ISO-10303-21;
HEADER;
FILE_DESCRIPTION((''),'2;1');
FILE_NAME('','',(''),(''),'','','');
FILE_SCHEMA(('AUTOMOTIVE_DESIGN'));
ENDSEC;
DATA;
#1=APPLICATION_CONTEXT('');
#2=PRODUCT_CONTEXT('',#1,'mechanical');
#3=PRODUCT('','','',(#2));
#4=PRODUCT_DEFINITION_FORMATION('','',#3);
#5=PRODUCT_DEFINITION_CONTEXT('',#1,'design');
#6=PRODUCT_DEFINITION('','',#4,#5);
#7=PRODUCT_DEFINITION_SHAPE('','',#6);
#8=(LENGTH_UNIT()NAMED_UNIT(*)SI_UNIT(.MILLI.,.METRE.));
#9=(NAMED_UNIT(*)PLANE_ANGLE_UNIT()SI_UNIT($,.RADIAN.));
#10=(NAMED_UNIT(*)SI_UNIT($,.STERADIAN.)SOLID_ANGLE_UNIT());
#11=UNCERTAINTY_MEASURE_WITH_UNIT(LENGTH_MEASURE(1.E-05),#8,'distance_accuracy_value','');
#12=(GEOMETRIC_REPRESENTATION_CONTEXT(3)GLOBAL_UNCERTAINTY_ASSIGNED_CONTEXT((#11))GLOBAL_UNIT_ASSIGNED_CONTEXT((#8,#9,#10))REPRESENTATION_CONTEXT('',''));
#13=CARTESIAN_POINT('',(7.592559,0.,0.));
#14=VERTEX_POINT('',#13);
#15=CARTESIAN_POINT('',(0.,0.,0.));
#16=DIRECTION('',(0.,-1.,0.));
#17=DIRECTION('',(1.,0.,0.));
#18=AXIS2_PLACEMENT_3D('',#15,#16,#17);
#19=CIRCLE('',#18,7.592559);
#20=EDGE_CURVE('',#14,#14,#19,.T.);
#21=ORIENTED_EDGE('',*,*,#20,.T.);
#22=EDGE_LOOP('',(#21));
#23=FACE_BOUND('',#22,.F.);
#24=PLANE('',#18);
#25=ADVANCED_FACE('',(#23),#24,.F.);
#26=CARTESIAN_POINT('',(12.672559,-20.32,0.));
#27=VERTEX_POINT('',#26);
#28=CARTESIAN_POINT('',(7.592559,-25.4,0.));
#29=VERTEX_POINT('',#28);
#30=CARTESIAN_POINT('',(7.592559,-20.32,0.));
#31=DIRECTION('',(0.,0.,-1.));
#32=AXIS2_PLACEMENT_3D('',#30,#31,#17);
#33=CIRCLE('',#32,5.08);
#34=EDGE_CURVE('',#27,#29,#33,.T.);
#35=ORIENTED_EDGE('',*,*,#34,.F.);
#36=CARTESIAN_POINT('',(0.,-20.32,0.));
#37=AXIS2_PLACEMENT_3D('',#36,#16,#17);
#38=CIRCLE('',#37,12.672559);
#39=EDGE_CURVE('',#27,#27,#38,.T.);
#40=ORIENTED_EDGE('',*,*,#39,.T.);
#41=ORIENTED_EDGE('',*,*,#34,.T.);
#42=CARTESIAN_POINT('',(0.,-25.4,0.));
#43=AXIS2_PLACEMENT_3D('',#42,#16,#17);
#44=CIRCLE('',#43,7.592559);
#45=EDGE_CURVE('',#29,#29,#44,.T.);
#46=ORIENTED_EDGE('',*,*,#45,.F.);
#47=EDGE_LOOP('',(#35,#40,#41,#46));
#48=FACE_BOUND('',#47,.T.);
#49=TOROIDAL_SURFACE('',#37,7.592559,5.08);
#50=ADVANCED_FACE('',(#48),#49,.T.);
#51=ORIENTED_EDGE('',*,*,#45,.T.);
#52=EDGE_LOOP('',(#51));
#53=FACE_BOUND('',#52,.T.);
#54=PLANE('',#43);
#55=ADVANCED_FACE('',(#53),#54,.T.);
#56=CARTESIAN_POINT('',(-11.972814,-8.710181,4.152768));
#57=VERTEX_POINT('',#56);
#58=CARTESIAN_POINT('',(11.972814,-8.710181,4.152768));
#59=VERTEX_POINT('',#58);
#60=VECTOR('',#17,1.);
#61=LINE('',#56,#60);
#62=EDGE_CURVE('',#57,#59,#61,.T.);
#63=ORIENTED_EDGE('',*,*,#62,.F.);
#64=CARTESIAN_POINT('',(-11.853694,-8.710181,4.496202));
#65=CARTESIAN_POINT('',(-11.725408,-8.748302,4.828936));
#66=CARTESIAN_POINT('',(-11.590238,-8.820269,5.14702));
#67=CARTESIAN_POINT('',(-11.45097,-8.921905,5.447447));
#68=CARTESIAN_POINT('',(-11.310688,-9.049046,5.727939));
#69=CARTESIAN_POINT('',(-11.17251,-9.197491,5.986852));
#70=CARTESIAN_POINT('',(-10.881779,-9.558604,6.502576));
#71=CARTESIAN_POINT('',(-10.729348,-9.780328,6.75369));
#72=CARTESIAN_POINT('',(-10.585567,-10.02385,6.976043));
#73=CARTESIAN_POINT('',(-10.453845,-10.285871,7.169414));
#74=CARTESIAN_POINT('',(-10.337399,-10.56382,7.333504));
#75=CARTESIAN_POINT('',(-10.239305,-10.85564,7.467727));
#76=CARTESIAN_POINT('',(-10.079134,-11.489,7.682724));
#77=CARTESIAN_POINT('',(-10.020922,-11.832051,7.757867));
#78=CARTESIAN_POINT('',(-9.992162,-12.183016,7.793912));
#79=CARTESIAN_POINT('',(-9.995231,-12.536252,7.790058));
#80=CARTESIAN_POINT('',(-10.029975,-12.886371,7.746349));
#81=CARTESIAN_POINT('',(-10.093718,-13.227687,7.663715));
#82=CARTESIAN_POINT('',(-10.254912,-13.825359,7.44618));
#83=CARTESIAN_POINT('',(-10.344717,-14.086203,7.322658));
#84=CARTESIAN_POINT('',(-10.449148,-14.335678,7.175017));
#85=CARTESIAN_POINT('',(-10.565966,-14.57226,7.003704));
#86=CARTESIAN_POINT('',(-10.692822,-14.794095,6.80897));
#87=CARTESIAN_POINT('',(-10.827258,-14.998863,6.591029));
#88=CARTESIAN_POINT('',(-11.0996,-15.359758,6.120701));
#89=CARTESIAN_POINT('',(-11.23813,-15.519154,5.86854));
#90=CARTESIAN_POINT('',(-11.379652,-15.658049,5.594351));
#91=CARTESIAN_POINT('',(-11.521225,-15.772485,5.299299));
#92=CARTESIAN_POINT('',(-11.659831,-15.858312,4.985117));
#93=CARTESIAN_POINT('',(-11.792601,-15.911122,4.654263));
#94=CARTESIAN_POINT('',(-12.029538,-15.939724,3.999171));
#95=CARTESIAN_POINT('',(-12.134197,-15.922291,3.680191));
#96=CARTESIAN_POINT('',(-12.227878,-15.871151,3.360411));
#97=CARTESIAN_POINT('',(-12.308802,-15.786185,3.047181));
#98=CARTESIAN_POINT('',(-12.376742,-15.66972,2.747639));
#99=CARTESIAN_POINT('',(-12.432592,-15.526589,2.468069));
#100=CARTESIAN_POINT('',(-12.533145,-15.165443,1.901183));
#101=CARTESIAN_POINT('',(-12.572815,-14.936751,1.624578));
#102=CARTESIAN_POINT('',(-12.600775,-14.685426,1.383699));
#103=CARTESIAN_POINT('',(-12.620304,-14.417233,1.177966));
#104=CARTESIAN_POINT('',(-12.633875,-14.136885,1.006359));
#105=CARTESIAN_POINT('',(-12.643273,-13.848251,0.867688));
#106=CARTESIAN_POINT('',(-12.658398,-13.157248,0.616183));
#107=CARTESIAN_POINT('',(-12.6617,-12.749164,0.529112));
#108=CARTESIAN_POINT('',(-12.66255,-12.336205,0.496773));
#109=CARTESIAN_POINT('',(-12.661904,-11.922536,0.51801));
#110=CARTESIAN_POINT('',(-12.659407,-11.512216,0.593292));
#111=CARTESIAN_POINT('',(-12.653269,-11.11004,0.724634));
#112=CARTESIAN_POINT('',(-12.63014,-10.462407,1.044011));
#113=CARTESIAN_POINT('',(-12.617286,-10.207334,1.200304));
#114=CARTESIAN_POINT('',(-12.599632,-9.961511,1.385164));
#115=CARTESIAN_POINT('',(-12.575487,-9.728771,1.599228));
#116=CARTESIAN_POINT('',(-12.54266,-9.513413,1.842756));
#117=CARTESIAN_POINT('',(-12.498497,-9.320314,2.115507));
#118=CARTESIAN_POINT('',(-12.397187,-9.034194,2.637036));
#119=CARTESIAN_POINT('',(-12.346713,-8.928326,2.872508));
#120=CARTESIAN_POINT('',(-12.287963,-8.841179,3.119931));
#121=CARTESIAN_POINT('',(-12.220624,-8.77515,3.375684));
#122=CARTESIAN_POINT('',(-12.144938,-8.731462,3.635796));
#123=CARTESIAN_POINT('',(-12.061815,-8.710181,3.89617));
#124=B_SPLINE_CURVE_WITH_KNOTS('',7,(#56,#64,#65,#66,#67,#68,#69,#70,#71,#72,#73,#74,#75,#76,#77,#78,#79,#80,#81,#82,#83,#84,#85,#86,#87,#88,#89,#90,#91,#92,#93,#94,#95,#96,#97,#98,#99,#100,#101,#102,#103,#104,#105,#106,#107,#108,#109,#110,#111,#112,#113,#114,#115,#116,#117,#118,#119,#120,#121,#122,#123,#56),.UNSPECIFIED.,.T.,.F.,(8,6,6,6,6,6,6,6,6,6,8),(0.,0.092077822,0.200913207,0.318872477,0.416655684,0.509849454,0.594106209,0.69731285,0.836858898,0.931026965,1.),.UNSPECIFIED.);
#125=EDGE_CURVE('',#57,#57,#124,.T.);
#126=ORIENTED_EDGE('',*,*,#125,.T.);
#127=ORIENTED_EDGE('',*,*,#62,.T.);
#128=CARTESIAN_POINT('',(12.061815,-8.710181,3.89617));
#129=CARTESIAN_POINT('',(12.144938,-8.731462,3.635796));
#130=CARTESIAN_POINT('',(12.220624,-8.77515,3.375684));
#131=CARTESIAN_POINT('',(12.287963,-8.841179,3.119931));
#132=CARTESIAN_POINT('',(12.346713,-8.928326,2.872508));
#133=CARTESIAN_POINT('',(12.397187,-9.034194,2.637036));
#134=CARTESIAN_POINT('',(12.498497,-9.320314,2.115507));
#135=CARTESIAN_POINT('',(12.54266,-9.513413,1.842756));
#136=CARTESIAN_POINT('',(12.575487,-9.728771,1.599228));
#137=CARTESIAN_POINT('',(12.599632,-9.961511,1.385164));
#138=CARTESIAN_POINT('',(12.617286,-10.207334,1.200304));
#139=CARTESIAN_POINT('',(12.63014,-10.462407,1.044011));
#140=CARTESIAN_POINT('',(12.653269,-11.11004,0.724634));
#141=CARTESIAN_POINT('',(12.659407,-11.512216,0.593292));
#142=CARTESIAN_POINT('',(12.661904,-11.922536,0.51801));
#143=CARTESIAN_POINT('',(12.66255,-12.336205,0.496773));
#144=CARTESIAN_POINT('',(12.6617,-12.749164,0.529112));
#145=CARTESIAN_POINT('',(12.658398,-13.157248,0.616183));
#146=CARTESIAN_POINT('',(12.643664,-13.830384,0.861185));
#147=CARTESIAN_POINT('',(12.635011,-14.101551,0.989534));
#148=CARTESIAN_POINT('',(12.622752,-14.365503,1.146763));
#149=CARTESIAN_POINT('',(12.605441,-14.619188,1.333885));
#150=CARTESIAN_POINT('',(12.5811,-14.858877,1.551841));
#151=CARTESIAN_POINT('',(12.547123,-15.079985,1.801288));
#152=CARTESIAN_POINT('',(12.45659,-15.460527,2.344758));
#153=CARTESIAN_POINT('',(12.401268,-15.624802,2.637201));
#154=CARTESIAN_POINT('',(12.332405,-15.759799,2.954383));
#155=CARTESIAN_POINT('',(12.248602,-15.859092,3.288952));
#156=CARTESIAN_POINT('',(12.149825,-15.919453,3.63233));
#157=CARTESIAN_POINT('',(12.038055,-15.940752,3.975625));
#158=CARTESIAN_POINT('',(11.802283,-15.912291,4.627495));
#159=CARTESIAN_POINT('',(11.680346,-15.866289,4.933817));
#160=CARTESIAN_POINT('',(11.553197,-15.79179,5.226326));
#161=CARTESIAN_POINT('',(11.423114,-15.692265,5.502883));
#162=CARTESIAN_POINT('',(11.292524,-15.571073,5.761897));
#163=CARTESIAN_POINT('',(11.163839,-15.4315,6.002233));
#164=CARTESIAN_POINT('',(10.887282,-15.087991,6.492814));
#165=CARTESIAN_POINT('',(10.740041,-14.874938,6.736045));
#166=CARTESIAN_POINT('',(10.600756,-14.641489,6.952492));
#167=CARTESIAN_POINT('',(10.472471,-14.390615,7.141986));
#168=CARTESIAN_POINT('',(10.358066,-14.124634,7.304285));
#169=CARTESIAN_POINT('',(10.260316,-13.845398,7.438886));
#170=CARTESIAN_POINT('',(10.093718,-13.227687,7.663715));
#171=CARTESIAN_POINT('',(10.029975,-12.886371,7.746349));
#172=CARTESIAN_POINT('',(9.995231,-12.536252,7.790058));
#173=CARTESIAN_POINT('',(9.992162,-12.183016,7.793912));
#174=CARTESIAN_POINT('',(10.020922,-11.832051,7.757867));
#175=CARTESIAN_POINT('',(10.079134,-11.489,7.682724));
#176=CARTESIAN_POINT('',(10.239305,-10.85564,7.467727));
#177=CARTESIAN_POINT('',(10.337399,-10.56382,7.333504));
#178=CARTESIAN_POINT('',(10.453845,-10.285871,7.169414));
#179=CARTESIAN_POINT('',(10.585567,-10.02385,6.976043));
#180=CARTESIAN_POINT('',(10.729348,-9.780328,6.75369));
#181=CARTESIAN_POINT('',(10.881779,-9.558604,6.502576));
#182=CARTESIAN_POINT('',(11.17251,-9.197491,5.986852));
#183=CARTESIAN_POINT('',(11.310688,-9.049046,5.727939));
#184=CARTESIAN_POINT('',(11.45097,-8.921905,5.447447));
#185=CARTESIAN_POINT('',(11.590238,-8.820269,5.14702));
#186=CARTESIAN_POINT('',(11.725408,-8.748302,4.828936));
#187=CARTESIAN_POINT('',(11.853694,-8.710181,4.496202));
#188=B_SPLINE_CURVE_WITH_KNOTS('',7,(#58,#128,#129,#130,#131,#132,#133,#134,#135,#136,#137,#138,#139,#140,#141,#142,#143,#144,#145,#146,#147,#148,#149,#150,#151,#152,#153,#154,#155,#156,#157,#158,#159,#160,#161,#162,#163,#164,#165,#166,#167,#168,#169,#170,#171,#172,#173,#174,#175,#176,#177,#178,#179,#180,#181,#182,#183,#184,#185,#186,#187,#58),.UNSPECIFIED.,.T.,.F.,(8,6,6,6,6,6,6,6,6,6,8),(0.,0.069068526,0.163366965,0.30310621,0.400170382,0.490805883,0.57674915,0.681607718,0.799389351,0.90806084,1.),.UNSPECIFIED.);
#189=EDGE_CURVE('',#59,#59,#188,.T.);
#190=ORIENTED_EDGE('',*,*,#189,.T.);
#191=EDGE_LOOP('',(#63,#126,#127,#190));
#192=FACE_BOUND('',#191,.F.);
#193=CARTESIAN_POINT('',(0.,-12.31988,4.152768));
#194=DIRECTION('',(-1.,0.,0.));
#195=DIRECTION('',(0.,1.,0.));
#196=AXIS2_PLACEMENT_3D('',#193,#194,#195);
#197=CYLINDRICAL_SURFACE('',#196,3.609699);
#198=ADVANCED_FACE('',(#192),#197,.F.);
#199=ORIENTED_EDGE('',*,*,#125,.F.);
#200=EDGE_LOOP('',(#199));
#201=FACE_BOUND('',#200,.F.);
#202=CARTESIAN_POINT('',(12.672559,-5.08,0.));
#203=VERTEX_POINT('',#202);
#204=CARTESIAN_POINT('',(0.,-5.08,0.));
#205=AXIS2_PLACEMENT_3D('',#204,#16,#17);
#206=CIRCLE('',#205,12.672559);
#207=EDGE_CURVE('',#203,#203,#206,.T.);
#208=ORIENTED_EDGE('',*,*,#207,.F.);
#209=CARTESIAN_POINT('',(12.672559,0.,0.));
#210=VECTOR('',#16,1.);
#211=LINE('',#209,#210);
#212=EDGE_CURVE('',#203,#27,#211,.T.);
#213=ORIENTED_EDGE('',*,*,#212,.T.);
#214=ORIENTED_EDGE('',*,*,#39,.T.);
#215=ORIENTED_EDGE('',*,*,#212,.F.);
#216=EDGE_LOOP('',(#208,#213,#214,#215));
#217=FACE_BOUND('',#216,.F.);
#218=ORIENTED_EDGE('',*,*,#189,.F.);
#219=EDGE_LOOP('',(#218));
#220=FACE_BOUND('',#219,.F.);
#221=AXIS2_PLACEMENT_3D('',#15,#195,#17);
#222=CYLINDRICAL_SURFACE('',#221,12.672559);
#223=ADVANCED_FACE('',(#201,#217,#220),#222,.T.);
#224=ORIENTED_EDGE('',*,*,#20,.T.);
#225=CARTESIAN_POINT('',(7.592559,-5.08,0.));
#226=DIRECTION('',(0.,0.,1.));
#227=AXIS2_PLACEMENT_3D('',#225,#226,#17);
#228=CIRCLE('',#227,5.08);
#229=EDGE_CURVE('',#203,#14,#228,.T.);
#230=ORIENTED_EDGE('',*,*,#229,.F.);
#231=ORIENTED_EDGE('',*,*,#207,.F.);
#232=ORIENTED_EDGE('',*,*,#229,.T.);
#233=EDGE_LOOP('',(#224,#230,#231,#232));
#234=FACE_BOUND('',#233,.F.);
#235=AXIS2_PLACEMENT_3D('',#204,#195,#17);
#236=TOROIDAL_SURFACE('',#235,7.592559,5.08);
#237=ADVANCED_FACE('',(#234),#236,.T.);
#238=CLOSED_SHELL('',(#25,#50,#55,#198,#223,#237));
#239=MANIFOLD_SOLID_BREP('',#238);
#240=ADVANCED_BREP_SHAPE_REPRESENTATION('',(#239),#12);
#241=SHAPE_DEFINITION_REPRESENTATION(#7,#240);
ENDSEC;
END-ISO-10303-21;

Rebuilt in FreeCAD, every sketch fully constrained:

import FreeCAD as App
import Part
import Sketcher
from FreeCAD import Vector
Q = App.Units.Quantity


def edges_at(feature, points):
    """Names of the edges that pass closest to the given points."""
    edges = feature.Shape.Edges
    near = lambda p: min(range(len(edges)), key=lambda i: edges[i].distToShape(Part.Vertex(*p))[0])
    return sorted({f"Edge{near(p) + 1}" for p in points})

doc = App.newDocument("Part")
params = doc.addObject("Spreadsheet::Sheet", "Params")
for row, (alias, value) in enumerate([
    ("pad1_length", "1 in"),
    ("fillet_radius", "0.2 in"),
    ("fillet2_radius", "0.2 in"),
    ("pocket1_length", "2 in"),
    ("pocket2_length", "4 in"),
], start=1):
    params.set(f"A{row}", alias)
    params.set(f"B{row}", "=" + value)
    params.setAlias(f"B{row}", alias)

body = doc.addObject("PartDesign::Body", "Body")

# Sketch on XZ plane
sketch1 = body.newObject("Sketcher::SketchObject", "Sketch")
sketch1.AttachmentSupport = (doc.getObject("XZ_Plane"), [""])
sketch1.MapMode = "FlatFace"
sketch1.addGeometry(Part.Circle(Vector(0, 0, 0), Vector(0, 0, 1), 13), False)
sketch1.addConstraint([
    Sketcher.Constraint("Coincident", 0, 3, -1, 1),
    Sketcher.Constraint("Diameter", 0, Q("25.345118 mm")),
])
pad1 = body.newObject("PartDesign::Pad", "Pad")
pad1.Profile = sketch1
pad1.setExpression("Length", "Params.pad1_length")
doc.recompute()

fillet = body.newObject("PartDesign::Fillet", "Fillet")
fillet.Base = (pad1, edges_at(pad1, [(-12.673, -25.4, 0)]))
fillet.setExpression("Radius", "Params.fillet_radius")
doc.recompute()

fillet2 = body.newObject("PartDesign::Fillet", "Fillet001")
fillet2.Base = (fillet, edges_at(fillet, [(-12.673, 0, 0)]))
fillet2.setExpression("Radius", "Params.fillet2_radius")

# Sketch on YZ plane
sketch2 = body.newObject("Sketcher::SketchObject", "Sketch001")
sketch2.AttachmentSupport = (doc.getObject("YZ_Plane"), [""])
sketch2.MapMode = "FlatFace"
sketch2.addGeometry(Part.Circle(Vector(-12.3, 4.2, 0), Vector(0, 0, 1), 3.6), False)
sketch2.addConstraint([
    Sketcher.Constraint("Diameter", 0, Q("7.219398 mm")),
    Sketcher.Constraint("DistanceX", 0, 3, -1, 1, Q("12.31988 mm")),
    Sketcher.Constraint("DistanceY", -1, 1, 0, 3, Q("4.152768 mm")),
])
pocket1 = body.newObject("PartDesign::Pocket", "Pocket")
pocket1.Profile = sketch2
pocket1.setExpression("Length", "Params.pocket1_length")

# Sketch on YZ plane
sketch3 = body.newObject("Sketcher::SketchObject", "Sketch002")
sketch3.AttachmentSupport = (doc.getObject("YZ_Plane"), [""])
sketch3.MapMode = "FlatFace"
sketch3.addGeometry(Part.Circle(Vector(-12.3, 4.2, 0), Vector(0, 0, 1), 3.6), False)
sketch3.addConstraint([
    Sketcher.Constraint("Diameter", 0, Q("7.219398 mm")),
    Sketcher.Constraint("DistanceX", 0, 3, -1, 1, Q("12.31988 mm")),
    Sketcher.Constraint("DistanceY", -1, 1, 0, 3, Q("4.152768 mm")),
])
pocket2 = body.newObject("PartDesign::Pocket", "Pocket001")
pocket2.Profile = sketch3
pocket2.setExpression("Length", "Params.pocket2_length")
pocket2.Reversed = True

doc.recompute()
